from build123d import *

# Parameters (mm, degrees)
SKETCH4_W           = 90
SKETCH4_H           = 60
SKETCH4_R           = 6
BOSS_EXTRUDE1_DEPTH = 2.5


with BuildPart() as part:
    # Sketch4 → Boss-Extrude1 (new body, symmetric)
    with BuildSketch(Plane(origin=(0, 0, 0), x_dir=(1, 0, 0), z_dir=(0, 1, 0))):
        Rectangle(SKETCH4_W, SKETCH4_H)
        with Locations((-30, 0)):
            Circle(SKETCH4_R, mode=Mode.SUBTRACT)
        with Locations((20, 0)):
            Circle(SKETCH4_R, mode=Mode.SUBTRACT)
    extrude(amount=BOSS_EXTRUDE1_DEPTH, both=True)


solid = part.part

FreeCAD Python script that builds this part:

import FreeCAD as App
import Part
import Sketcher
Q = App.Units.Quantity


def add_polygon(sketch, points):
    """Adds a closed chain of lines whose ends are joined by coincident constraints."""
    first, n = sketch.GeometryCount, len(points)
    for a, b in zip(points, points[1:] + points[:1]):
        sketch.addGeometry(Part.LineSegment(App.Vector(*a, 0), App.Vector(*b, 0)), False)
    for i in range(n):
        sketch.addConstraint(Sketcher.Constraint("Coincident", first + i, 2, first + (i + 1) % n, 1))

doc = App.newDocument("Part")
body = doc.addObject("PartDesign::Body", "Body")

# Sketch on XZ plane
sketch1 = doc.addObject("Sketcher::SketchObject", "Sketch")
body.addObject(sketch1)
sketch1.AttachmentSupport = (doc.XZ_Plane, [""])
sketch1.MapMode = "FlatFace"
add_polygon(sketch1, [(-45, -30), (-45, 30), (45, 30), (45, -30)])  # lines 0-3
sketch1.addGeometry(Part.Circle(App.Vector(-30, 0, 0), App.Vector(0, 0, 1), 6), False)  # 4
sketch1.addGeometry(Part.Circle(App.Vector(20, 0, 0), App.Vector(0, 0, 1), 6), False)  # 5
sketch1.addConstraint(Sketcher.Constraint("Vertical", 0))
sketch1.addConstraint(Sketcher.Constraint("Horizontal", 1))
sketch1.addConstraint(Sketcher.Constraint("Vertical", 2))
sketch1.addConstraint(Sketcher.Constraint("Horizontal", 3))
sketch1.addConstraint(Sketcher.Constraint("Equal", 4, 5))
sketch1.addConstraint(Sketcher.Constraint("Symmetric", 0, 2, 2, 2, -1, 1))
sketch1.addConstraint(Sketcher.Constraint("PointOnObject", 4, 3, -1))
sketch1.addConstraint(Sketcher.Constraint("PointOnObject", 5, 3, -1))
sketch1.addConstraint(Sketcher.Constraint("Diameter", 4, Q("12 mm")))
sketch1.addConstraint(Sketcher.Constraint("DistanceX", 1, 1, 1, 2, Q("90 mm")))
sketch1.addConstraint(Sketcher.Constraint("DistanceY", 0, 1, 0, 2, Q("60 mm")))
sketch1.addConstraint(Sketcher.Constraint("DistanceX", 4, 3, -1, 1, Q("30 mm")))
sketch1.addConstraint(Sketcher.Constraint("DistanceX", -1, 1, 5, 3, Q("20 mm")))
pad1 = doc.addObject("PartDesign::Pad", "Pad")
body.addObject(pad1)
pad1.Profile = sketch1
pad1.Length = 5
pad1.Midplane = True

doc.recompute()
